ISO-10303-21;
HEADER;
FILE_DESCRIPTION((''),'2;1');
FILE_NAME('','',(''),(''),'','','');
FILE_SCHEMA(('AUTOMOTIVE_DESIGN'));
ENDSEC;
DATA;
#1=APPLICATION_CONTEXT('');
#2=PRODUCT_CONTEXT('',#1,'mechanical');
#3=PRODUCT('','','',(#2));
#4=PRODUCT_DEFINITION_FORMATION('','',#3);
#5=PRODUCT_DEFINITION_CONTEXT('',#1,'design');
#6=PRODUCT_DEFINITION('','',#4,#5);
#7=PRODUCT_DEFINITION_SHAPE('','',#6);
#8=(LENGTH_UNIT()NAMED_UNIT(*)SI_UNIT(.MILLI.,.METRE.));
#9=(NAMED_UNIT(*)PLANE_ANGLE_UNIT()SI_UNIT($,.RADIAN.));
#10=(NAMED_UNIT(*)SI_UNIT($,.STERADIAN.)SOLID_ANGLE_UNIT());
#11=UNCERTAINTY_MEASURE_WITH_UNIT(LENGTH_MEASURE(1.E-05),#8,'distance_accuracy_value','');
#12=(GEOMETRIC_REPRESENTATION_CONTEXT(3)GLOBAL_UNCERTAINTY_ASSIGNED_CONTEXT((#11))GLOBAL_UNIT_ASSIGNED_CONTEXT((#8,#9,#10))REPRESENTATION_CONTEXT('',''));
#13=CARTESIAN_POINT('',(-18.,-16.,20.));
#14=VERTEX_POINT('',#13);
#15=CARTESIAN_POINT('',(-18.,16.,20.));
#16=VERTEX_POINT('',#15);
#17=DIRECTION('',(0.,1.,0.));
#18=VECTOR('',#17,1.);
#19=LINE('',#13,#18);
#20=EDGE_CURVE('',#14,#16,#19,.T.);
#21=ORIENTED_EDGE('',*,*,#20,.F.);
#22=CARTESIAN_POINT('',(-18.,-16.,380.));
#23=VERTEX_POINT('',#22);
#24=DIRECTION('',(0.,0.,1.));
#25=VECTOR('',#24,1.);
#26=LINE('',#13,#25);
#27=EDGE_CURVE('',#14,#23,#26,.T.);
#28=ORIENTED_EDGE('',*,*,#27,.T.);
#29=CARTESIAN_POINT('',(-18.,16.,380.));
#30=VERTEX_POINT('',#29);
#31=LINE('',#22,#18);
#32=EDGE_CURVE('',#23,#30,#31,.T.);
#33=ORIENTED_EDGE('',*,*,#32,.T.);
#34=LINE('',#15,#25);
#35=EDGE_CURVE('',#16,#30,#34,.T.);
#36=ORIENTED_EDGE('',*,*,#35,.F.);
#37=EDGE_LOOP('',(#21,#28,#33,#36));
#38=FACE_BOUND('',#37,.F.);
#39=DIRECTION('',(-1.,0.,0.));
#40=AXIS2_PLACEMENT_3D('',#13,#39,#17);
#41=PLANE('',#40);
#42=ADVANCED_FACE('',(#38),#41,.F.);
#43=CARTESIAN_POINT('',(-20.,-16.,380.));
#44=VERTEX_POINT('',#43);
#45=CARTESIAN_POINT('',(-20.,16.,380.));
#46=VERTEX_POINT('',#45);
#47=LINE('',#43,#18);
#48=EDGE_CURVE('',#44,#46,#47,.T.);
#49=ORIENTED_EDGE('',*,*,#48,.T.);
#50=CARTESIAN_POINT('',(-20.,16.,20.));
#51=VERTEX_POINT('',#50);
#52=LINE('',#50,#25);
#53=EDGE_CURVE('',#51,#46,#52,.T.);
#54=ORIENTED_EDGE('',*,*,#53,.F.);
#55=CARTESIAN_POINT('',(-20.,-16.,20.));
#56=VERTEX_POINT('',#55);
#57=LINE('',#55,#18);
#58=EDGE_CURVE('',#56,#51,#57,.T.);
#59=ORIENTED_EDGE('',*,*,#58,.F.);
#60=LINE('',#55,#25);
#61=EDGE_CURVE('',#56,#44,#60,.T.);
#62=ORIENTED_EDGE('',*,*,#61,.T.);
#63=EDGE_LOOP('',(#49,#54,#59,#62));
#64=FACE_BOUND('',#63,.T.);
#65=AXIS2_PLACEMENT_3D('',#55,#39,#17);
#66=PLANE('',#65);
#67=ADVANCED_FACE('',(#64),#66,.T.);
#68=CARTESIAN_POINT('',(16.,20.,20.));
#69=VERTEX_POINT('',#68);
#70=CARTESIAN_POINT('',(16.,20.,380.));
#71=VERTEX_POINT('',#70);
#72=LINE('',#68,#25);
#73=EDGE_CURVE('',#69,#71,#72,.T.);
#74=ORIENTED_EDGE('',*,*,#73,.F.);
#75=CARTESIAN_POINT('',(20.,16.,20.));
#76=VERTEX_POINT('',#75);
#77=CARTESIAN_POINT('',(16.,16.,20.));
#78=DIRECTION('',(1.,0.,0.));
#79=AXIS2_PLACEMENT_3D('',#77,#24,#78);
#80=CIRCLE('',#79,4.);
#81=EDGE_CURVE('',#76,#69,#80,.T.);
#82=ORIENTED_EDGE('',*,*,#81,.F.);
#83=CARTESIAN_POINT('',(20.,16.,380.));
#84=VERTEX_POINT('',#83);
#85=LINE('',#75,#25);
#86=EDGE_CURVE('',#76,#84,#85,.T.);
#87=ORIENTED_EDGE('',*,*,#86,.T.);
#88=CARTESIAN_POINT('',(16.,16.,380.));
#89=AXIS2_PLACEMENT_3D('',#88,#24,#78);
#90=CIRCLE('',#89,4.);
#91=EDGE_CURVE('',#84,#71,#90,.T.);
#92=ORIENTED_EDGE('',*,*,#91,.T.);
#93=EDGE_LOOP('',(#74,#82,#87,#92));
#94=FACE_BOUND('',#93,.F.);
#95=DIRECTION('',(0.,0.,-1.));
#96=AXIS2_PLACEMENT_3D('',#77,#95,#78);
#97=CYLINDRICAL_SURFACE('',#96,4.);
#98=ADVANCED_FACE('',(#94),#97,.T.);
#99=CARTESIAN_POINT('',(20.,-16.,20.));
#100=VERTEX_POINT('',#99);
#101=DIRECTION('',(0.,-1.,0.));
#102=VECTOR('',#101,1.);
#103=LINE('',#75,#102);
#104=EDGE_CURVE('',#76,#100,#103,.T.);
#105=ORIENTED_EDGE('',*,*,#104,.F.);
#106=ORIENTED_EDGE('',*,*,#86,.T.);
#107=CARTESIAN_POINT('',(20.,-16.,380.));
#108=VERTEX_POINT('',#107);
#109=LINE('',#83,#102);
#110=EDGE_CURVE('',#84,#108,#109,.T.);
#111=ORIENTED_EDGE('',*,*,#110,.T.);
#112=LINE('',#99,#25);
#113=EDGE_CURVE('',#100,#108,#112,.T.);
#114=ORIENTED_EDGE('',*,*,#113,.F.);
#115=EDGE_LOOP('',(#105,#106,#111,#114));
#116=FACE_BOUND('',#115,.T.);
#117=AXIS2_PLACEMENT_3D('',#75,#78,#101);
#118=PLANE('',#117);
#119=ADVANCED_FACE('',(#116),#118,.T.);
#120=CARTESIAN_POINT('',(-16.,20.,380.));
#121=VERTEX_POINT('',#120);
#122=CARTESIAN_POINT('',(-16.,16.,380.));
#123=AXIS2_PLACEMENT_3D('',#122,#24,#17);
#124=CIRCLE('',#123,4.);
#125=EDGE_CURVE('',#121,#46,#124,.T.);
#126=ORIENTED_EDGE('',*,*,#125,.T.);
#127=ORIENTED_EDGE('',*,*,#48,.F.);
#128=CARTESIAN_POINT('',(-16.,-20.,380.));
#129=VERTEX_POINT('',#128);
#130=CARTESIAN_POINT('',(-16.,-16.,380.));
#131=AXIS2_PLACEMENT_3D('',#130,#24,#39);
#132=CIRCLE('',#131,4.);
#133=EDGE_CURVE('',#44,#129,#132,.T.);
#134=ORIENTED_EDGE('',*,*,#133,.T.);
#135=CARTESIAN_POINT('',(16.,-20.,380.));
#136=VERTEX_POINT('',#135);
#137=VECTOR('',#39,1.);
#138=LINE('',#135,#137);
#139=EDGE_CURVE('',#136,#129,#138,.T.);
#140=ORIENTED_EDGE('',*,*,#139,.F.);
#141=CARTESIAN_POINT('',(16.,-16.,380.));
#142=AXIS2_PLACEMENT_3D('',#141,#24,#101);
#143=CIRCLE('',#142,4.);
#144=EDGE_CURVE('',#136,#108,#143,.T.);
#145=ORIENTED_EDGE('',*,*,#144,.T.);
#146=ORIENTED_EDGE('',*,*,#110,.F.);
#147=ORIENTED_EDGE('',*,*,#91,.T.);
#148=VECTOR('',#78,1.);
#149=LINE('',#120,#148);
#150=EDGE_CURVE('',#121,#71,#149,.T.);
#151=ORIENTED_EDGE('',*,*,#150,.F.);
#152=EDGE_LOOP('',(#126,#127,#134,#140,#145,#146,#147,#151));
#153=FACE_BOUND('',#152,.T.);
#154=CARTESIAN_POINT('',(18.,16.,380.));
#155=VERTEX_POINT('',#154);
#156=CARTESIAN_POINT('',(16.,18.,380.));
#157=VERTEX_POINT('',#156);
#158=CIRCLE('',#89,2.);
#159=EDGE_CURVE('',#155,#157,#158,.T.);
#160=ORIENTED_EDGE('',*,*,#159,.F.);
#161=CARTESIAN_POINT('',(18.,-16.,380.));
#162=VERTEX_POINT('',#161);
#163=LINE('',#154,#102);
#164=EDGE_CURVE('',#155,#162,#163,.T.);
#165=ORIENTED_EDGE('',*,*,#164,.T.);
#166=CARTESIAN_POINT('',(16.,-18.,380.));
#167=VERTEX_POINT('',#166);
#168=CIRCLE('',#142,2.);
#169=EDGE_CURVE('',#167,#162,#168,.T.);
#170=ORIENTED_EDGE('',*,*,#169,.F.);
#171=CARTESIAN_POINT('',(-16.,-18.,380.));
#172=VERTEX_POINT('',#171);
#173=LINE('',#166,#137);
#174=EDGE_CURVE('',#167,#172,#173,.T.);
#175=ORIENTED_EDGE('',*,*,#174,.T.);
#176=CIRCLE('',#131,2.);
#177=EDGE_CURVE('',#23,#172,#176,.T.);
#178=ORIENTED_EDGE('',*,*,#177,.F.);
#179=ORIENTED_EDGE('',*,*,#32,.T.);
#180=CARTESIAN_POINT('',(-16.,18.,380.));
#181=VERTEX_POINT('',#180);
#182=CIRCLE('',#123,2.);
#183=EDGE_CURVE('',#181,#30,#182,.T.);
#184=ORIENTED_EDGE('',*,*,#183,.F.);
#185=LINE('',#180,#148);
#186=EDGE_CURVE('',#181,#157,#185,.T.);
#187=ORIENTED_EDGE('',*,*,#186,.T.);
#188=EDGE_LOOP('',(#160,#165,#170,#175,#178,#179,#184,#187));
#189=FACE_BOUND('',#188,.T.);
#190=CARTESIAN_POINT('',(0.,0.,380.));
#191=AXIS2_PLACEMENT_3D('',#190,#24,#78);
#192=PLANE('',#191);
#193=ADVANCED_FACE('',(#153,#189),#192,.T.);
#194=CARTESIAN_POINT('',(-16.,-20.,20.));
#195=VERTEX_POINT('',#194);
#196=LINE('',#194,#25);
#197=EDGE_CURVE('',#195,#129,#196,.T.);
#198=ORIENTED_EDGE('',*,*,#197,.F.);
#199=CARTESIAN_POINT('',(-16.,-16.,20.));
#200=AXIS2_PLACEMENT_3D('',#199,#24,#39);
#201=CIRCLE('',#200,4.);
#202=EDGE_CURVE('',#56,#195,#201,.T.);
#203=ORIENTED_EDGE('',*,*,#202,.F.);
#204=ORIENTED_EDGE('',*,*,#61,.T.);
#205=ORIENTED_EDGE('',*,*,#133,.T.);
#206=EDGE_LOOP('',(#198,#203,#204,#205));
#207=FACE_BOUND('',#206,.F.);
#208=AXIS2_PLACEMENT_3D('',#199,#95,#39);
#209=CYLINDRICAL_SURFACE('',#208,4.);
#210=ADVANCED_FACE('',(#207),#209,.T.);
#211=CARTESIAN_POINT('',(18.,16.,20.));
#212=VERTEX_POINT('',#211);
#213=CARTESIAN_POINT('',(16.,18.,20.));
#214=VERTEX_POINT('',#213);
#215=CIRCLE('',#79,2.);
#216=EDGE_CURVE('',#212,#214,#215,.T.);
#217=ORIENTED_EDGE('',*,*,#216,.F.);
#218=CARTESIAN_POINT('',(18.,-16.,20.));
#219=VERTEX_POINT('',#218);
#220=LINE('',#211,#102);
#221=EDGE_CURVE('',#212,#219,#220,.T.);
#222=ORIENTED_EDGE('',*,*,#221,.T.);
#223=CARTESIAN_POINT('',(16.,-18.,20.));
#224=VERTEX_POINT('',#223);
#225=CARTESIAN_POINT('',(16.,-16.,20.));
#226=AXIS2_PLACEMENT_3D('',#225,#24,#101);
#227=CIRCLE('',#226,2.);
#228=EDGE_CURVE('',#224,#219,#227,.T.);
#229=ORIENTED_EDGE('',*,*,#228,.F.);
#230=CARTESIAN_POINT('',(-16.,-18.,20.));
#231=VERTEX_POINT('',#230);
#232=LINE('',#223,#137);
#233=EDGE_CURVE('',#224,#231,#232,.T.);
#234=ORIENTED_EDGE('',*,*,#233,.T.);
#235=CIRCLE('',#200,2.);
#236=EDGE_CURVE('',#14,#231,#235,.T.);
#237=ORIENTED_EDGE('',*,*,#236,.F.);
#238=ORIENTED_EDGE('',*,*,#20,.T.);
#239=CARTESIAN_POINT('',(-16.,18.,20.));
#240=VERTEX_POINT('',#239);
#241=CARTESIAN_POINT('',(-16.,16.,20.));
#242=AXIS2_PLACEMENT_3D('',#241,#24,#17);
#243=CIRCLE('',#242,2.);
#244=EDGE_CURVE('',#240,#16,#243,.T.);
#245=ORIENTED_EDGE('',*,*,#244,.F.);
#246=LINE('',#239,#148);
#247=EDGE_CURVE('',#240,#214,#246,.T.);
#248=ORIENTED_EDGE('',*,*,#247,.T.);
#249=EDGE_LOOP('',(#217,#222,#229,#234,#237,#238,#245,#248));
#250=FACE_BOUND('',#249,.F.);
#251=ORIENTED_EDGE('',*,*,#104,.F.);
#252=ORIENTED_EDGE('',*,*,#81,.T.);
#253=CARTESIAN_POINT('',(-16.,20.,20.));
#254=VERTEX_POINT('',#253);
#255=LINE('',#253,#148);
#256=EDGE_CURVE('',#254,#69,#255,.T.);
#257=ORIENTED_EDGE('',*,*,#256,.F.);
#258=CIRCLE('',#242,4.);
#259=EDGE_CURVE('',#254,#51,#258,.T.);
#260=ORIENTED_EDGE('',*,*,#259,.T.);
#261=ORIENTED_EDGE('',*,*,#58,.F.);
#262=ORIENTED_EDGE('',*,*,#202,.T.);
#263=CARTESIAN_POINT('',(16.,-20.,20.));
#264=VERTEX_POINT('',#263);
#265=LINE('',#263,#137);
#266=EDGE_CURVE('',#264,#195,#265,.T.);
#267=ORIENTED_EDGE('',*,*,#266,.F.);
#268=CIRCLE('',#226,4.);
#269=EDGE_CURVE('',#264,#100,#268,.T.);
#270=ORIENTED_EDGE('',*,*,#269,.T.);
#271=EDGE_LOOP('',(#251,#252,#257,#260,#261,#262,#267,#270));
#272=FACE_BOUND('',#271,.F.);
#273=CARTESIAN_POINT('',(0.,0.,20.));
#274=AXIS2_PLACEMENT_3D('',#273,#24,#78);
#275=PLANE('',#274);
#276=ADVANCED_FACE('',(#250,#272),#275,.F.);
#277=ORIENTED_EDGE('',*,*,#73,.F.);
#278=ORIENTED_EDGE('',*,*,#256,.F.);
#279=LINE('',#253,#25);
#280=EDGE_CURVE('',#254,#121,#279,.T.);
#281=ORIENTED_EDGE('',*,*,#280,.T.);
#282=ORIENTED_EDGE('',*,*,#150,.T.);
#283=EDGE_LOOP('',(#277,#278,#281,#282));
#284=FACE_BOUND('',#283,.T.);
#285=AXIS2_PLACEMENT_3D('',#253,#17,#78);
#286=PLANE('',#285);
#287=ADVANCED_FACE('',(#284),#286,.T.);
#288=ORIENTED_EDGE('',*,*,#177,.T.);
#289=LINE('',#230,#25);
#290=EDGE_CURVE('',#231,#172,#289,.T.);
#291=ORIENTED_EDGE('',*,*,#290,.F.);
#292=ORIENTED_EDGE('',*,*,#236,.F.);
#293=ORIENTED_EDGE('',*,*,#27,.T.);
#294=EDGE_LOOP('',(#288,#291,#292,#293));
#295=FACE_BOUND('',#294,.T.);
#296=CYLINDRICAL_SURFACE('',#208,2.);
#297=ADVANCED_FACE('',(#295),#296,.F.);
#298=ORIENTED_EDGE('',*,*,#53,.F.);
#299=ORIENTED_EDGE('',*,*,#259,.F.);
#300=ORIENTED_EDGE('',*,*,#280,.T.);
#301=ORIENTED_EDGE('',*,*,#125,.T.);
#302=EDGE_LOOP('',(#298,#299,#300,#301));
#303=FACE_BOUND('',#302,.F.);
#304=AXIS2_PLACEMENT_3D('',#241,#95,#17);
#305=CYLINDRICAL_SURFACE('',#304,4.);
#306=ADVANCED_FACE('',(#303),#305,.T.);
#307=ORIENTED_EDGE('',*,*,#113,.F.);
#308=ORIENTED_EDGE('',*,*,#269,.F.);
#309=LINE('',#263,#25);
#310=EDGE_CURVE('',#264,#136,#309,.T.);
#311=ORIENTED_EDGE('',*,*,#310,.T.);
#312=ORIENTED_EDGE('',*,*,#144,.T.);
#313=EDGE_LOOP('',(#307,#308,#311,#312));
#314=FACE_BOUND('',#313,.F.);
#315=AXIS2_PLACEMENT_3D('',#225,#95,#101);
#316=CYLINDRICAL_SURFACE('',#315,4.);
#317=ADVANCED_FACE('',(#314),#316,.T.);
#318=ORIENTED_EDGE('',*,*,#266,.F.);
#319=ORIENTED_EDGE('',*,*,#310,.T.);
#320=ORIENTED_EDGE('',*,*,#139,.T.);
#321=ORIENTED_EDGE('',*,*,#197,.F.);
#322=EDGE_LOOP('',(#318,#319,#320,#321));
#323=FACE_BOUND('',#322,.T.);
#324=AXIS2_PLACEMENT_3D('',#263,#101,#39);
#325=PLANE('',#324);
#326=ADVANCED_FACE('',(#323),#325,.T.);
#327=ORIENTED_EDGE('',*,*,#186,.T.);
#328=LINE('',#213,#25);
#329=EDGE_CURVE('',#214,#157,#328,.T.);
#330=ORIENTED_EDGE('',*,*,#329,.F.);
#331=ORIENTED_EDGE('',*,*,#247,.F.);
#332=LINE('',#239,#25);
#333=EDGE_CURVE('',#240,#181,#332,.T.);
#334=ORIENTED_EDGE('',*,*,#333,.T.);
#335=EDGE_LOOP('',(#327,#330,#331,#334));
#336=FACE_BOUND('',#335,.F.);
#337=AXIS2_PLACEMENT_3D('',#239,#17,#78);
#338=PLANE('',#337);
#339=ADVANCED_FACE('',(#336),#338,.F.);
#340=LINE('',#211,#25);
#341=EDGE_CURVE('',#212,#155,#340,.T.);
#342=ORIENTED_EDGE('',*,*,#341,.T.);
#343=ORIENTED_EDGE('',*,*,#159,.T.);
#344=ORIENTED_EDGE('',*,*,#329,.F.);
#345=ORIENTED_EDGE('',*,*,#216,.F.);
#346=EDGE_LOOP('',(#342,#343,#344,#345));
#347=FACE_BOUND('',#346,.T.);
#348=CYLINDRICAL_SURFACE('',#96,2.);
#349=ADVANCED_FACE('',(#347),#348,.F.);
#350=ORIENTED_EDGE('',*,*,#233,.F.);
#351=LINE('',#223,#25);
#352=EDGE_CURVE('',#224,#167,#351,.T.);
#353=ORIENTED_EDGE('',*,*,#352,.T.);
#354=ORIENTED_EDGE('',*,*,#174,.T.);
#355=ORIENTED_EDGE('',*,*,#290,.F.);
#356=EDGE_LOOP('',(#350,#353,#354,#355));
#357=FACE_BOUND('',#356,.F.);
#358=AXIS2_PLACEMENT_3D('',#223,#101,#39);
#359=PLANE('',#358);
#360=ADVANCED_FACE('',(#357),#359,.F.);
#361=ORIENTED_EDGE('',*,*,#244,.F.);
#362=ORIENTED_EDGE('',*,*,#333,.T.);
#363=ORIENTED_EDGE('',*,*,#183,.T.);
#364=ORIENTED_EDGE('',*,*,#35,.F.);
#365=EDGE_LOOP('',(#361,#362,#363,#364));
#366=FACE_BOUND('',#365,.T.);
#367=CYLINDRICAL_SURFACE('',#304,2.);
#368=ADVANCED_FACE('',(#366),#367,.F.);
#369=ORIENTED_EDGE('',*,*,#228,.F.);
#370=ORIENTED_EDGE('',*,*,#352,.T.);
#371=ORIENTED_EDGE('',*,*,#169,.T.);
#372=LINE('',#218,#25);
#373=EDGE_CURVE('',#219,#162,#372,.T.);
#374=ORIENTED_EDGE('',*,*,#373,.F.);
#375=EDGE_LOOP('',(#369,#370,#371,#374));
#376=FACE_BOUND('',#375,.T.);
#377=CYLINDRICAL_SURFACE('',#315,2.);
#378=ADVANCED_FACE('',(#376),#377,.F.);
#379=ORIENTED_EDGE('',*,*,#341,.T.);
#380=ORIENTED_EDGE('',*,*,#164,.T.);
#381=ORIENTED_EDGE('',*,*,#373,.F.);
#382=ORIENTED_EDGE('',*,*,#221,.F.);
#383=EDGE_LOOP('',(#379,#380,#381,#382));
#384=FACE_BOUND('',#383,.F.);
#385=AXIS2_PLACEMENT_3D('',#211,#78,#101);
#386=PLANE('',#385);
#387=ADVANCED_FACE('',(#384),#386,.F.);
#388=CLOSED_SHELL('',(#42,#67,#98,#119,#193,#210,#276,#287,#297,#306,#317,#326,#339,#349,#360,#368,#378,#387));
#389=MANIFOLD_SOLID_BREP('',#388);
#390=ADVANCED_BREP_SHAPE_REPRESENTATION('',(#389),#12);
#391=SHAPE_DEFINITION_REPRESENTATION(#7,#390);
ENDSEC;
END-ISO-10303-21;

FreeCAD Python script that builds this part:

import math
import FreeCAD as App
import Part
import Sketcher
from FreeCAD import Vector

doc = App.newDocument("Part")
params = doc.addObject("Spreadsheet::Sheet", "Params")
for row, (alias, value) in enumerate([
    ("sketch1_radius", "4 mm"),
    ("sketch1_radius2", "2 mm"),
    ("pad1_length", "360 mm"),
], start=1):
    params.set(f"A{row}", alias)
    params.set(f"B{row}", "=" + value)
    params.setAlias(f"B{row}", alias)

body = doc.addObject("PartDesign::Body", "Body")

# Sketch on XY plane
sketch1 = body.newObject("Sketcher::SketchObject", "Sketch")
sketch1.AttachmentSupport = (doc.getObject("XY_Plane"), [""])
sketch1.MapMode = "FlatFace"
sketch1.AttachmentOffset = App.Placement(Vector(0, 0, 20), App.Rotation())
sketch1.addGeometry([
    Part.LineSegment(Vector(-20, 16, 0), Vector(-20, -16, 0)),  # 0
    Part.ArcOfCircle(Part.Circle(Vector(-16, -16, 0), Vector(0, 0, 1), 4), math.radians(180), math.radians(270)),  # 1
    Part.LineSegment(Vector(-16, -20, 0), Vector(16, -20, 0)),  # 2
    Part.ArcOfCircle(Part.Circle(Vector(16, -16, 0), Vector(0, 0, 1), 4), math.radians(-90), math.radians(0)),  # 3
    Part.LineSegment(Vector(20, -16, 0), Vector(20, 16, 0)),  # 4
    Part.ArcOfCircle(Part.Circle(Vector(16, 16, 0), Vector(0, 0, 1), 4), math.radians(0), math.radians(90)),  # 5
    Part.LineSegment(Vector(16, 20, 0), Vector(-16, 20, 0)),  # 6
    Part.ArcOfCircle(Part.Circle(Vector(-16, 16, 0), Vector(0, 0, 1), 4), math.radians(90), math.radians(180)),  # 7
    Part.ArcOfCircle(Part.Circle(Vector(-16, 16, 0), Vector(0, 0, 1), 2), math.radians(90), math.radians(180)),  # 8
    Part.LineSegment(Vector(-16, 18, 0), Vector(16, 18, 0)),  # 9
    Part.ArcOfCircle(Part.Circle(Vector(16, 16, 0), Vector(0, 0, 1), 2), math.radians(0), math.radians(90)),  # 10
    Part.LineSegment(Vector(18, 16, 0), Vector(18, -16, 0)),  # 11
    Part.ArcOfCircle(Part.Circle(Vector(16, -16, 0), Vector(0, 0, 1), 2), math.radians(-90), math.radians(0)),  # 12
    Part.LineSegment(Vector(16, -18, 0), Vector(-16, -18, 0)),  # 13
    Part.ArcOfCircle(Part.Circle(Vector(-16, -16, 0), Vector(0, 0, 1), 2), math.radians(180), math.radians(270)),  # 14
    Part.LineSegment(Vector(-18, -16, 0), Vector(-18, 16, 0)),  # 15
], False)
sketch1.addConstraint([
    Sketcher.Constraint("Tangent", 0, 2, 1, 1),
    Sketcher.Constraint("Tangent", 1, 2, 2, 1),
    Sketcher.Constraint("Tangent", 2, 2, 3, 1),
    Sketcher.Constraint("Tangent", 3, 2, 4, 1),
    Sketcher.Constraint("Tangent", 4, 2, 5, 1),
    Sketcher.Constraint("Tangent", 5, 2, 6, 1),
    Sketcher.Constraint("Tangent", 6, 2, 7, 1),
    Sketcher.Constraint("Tangent", 7, 2, 0, 1),
    Sketcher.Constraint("Tangent", 8, 1, 9, 1),
    Sketcher.Constraint("Tangent", 9, 2, 10, 2),
    Sketcher.Constraint("Tangent", 10, 1, 11, 1),
    Sketcher.Constraint("Tangent", 11, 2, 12, 2),
    Sketcher.Constraint("Tangent", 12, 1, 13, 1),
    Sketcher.Constraint("Tangent", 13, 2, 14, 2),
    Sketcher.Constraint("Tangent", 14, 1, 15, 1),
    Sketcher.Constraint("Tangent", 15, 2, 8, 2),
    Sketcher.Constraint("Vertical", 0),
    Sketcher.Constraint("Horizontal", 2),
    Sketcher.Constraint("Vertical", 4),
    Sketcher.Constraint("Horizontal", 6),
    Sketcher.Constraint("Horizontal", 9),
    Sketcher.Constraint("Vertical", 11),
    Sketcher.Constraint("Horizontal", 13),
    Sketcher.Constraint("Vertical", 15),
    Sketcher.Constraint("Coincident", 8, 3, 7, 3),
    Sketcher.Constraint("Coincident", 10, 3, 5, 3),
    Sketcher.Constraint("Coincident", 12, 3, 3, 3),
    Sketcher.Constraint("Equal", 1, 3),
    Sketcher.Constraint("Equal", 3, 5),
    Sketcher.Constraint("Equal", 5, 7),
    Sketcher.Constraint("Equal", 12, 14),
    Sketcher.Constraint("Symmetric", 1, 3, 5, 3, -1, 1),
    Sketcher.Constraint("Equal", 13, 0),
    Sketcher.Constraint("Radius", 1, 4.0),
    Sketcher.Constraint("Radius", 8, 2.0),
    Sketcher.Constraint("DistanceX", 0, 2, -1, 1, 20.0),
])
sketch1.setExpression("Constraints[33]", "Params.sketch1_radius")
sketch1.setExpression("Constraints[34]", "Params.sketch1_radius2")
pad1 = body.newObject("PartDesign::Pad", "Pad")
pad1.Profile = sketch1
pad1.setExpression("Length", "Params.pad1_length")

doc.recompute()
